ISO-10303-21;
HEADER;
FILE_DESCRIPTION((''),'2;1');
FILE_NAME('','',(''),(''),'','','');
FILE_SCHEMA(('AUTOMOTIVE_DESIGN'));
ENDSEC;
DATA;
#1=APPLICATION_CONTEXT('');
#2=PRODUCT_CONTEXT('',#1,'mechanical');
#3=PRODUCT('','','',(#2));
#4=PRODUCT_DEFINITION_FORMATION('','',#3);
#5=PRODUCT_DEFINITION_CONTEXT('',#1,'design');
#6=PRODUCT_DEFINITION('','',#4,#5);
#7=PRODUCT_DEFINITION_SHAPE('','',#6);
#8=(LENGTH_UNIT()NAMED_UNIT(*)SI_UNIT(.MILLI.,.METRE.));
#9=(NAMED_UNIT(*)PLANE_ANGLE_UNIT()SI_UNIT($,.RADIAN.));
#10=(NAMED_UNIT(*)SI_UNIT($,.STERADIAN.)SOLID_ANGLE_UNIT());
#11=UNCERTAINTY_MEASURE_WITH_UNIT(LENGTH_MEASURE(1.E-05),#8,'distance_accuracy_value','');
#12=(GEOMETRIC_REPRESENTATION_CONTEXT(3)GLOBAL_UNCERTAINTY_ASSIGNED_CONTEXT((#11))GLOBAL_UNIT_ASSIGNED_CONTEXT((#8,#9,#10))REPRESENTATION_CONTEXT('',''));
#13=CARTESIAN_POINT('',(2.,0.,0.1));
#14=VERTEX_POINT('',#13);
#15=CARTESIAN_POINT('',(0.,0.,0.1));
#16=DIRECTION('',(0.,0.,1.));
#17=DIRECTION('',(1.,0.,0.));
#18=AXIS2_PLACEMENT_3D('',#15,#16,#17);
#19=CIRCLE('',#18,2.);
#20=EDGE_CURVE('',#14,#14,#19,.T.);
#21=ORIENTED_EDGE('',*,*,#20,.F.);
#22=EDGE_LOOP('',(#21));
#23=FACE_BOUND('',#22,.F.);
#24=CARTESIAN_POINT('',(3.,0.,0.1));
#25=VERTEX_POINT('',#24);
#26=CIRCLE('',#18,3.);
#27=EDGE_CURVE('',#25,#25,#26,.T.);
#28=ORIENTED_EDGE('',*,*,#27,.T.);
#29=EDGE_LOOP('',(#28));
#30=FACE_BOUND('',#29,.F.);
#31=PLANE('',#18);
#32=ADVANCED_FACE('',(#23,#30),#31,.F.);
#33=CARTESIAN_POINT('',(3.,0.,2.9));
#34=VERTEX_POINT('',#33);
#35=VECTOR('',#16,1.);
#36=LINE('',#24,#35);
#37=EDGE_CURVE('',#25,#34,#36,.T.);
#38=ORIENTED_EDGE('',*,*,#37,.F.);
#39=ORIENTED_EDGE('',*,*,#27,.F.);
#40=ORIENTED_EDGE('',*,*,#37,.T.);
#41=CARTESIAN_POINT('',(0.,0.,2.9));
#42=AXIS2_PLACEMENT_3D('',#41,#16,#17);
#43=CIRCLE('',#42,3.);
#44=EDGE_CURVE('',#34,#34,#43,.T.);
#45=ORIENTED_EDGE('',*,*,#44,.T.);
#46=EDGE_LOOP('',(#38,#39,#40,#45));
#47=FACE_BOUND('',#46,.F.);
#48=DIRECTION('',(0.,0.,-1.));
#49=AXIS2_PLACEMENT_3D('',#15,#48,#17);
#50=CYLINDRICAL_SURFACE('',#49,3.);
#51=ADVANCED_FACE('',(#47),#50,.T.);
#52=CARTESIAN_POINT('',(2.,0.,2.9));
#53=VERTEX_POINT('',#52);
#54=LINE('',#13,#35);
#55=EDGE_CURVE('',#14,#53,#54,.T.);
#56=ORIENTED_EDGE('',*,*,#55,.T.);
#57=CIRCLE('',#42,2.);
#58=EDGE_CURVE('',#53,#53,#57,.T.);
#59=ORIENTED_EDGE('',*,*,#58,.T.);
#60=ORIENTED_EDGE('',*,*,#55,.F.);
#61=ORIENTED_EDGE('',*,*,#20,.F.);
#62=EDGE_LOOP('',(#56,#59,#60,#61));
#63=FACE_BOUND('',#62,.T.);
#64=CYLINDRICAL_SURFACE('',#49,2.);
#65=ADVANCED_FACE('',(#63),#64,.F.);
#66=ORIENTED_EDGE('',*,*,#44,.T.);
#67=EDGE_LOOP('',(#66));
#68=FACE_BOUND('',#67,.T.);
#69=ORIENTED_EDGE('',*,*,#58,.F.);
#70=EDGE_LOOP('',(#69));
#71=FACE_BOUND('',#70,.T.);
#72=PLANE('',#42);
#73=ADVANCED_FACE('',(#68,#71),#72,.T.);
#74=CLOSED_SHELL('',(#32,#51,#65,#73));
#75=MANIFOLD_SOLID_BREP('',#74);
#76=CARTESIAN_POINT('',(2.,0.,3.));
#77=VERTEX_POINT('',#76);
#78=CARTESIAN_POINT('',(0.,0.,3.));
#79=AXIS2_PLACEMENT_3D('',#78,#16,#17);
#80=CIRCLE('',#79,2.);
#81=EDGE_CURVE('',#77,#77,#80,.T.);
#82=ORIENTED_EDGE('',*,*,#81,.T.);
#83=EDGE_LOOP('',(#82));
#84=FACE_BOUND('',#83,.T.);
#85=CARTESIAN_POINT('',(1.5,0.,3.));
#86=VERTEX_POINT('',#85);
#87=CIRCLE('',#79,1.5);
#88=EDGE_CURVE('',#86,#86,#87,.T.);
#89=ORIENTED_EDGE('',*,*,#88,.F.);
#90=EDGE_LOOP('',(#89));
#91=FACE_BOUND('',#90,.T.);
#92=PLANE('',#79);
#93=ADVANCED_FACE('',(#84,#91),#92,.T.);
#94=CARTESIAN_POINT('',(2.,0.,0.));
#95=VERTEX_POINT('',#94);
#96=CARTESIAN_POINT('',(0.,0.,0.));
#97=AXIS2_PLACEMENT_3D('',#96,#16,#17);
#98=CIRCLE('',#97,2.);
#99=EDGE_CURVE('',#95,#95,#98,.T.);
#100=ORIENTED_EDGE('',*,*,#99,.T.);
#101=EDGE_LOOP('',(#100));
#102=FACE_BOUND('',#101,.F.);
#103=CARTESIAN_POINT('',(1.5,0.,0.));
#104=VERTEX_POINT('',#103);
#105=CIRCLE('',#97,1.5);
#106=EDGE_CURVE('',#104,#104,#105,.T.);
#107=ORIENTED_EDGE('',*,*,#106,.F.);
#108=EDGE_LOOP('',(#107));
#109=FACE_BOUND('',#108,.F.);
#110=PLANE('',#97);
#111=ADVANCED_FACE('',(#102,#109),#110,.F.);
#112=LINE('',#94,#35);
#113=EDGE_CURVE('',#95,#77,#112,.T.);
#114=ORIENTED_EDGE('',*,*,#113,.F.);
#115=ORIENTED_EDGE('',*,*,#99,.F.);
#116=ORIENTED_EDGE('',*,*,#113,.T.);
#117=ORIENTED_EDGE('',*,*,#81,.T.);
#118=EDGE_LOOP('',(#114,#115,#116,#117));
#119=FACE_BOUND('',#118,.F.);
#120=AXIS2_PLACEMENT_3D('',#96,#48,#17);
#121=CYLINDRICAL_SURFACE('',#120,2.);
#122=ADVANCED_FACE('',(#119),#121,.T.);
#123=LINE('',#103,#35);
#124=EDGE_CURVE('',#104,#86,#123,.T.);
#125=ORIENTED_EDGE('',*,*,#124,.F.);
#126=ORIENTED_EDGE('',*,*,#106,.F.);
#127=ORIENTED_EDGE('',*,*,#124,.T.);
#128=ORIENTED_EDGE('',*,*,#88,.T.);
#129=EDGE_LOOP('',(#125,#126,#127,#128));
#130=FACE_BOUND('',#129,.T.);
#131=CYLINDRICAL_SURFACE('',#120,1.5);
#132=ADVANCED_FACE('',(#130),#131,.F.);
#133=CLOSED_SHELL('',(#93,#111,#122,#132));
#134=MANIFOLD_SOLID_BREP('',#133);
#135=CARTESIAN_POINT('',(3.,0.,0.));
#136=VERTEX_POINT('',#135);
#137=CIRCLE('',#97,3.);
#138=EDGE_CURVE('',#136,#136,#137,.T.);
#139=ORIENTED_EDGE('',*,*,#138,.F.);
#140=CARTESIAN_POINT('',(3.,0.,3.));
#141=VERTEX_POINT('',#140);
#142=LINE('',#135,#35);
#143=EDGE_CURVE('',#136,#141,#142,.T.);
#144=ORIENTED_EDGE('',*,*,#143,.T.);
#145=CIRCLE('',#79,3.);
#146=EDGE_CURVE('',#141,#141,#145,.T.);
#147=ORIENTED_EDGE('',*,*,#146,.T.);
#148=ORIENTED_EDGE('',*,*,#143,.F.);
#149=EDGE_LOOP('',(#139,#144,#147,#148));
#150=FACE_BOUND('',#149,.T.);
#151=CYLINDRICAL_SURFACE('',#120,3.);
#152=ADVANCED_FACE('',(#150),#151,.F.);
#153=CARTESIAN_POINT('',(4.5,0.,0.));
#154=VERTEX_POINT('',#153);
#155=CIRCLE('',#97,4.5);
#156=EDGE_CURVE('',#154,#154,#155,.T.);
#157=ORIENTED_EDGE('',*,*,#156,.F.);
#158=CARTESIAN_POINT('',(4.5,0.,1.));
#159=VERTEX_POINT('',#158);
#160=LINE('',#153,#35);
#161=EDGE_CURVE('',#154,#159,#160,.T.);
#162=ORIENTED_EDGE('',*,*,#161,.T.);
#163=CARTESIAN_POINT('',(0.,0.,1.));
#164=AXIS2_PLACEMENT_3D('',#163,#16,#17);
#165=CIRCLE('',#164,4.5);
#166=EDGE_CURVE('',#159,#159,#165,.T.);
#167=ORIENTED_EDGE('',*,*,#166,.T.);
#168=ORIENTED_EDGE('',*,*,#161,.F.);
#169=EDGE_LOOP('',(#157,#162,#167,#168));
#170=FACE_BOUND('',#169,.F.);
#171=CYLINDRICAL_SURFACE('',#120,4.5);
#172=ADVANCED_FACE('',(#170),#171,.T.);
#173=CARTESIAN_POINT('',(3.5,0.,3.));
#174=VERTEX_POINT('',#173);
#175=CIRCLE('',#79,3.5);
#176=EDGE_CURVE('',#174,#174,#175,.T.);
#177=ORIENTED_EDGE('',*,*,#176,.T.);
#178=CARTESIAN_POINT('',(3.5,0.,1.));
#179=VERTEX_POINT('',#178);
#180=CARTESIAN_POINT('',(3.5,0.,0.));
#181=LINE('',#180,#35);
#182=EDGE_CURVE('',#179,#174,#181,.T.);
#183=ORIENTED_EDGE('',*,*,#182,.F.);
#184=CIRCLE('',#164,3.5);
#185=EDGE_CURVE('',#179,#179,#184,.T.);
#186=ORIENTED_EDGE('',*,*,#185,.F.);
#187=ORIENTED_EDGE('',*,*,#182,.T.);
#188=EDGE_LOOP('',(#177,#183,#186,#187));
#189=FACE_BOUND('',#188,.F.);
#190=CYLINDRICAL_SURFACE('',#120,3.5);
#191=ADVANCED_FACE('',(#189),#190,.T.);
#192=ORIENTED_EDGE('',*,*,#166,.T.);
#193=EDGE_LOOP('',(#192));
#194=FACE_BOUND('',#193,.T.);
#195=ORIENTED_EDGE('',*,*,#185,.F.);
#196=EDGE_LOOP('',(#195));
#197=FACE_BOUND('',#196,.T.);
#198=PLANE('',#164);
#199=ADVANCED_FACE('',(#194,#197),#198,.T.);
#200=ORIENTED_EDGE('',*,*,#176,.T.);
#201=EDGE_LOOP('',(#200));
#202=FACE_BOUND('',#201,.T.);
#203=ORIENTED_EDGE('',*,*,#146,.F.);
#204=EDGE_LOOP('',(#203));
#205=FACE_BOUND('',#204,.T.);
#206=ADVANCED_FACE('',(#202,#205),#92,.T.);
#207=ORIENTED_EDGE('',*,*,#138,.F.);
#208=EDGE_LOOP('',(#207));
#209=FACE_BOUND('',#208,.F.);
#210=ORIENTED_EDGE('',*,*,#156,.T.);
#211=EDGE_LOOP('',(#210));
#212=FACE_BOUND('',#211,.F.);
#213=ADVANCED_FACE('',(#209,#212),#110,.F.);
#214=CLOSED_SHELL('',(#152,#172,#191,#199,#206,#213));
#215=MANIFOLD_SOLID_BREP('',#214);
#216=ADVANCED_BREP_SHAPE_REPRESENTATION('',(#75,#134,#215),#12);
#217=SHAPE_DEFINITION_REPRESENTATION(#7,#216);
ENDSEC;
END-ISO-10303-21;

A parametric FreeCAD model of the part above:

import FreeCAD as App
import Part
import Sketcher
from FreeCAD import Vector
Q = App.Units.Quantity

doc = App.newDocument("Part")
body = doc.addObject("PartDesign::Body", "Body")

sketch1 = body.newObject("Sketcher::SketchObject", "Sketch")
sketch1.AttachmentSupport = (doc.getObject("XY_Plane"), [""])
sketch1.MapMode = "FlatFace"
sketch1.addGeometry([
    Part.Circle(Vector(0, 0, 0), Vector(0, 0, 1), 4.5),
    Part.Circle(Vector(0, 0, 0), Vector(0, 0, 1), 3.5),
], False)
sketch1.addConstraint([
    Sketcher.Constraint("Coincident", 0, 3, -1, 1),
    Sketcher.Constraint("Coincident", 1, 3, -1, 1),
    Sketcher.Constraint("Diameter", 0, Q("9 mm")),
    Sketcher.Constraint("Diameter", 1, Q("7 mm")),
])
pad1 = body.newObject("PartDesign::Pad", "Pad")
pad1.Profile = sketch1
pad1.Length = 1

sketch2 = body.newObject("Sketcher::SketchObject", "Sketch001")
sketch2.AttachmentSupport = (doc.getObject("XY_Plane"), [""])
sketch2.MapMode = "FlatFace"
sketch2.addGeometry([
    Part.Circle(Vector(0, 0, 0), Vector(0, 0, 1), 3.5),
    Part.Circle(Vector(0, 0, 0), Vector(0, 0, 1), 3),
], False)
sketch2.addConstraint([
    Sketcher.Constraint("Coincident", 0, 3, -1, 1),
    Sketcher.Constraint("Coincident", 1, 3, -1, 1),
    Sketcher.Constraint("Diameter", 0, Q("7 mm")),
    Sketcher.Constraint("Diameter", 1, Q("6 mm")),
])
pad2 = body.newObject("PartDesign::Pad", "Pad001")
pad2.Profile = sketch2
pad2.Length = 3
body2 = doc.addObject("PartDesign::Body", "Body001")

sketch3 = body2.newObject("Sketcher::SketchObject", "Sketch002")
sketch3.AttachmentSupport = (doc.getObject("XY_Plane001"), [""])
sketch3.MapMode = "FlatFace"
sketch3.addGeometry([
    Part.Circle(Vector(0, 0, 0), Vector(0, 0, 1), 2),
    Part.Circle(Vector(0, 0, 0), Vector(0, 0, 1), 1.5),
], False)
sketch3.addConstraint([
    Sketcher.Constraint("Coincident", 0, 3, -1, 1),
    Sketcher.Constraint("Coincident", 1, 3, -1, 1),
    Sketcher.Constraint("Diameter", 0, Q("4 mm")),
    Sketcher.Constraint("Diameter", 1, Q("3 mm")),
])
pad3 = body2.newObject("PartDesign::Pad", "Pad002")
pad3.Profile = sketch3
pad3.Length = 3
body3 = doc.addObject("PartDesign::Body", "Body002")

sketch4 = body3.newObject("Sketcher::SketchObject", "Sketch003")
sketch4.AttachmentSupport = (doc.getObject("XY_Plane002"), [""])
sketch4.MapMode = "FlatFace"
sketch4.AttachmentOffset = App.Placement(Vector(0, 0, 0.1), App.Rotation())
sketch4.addGeometry([
    Part.Circle(Vector(0, 0, 0), Vector(0, 0, 1), 3),
    Part.Circle(Vector(0, 0, 0), Vector(0, 0, 1), 2),
], False)
sketch4.addConstraint([
    Sketcher.Constraint("Coincident", 0, 3, -1, 1),
    Sketcher.Constraint("Coincident", 1, 3, -1, 1),
    Sketcher.Constraint("Diameter", 0, Q("6 mm")),
    Sketcher.Constraint("Diameter", 1, Q("4 mm")),
])
pad4 = body3.newObject("PartDesign::Pad", "Pad003")
pad4.Profile = sketch4
pad4.Length = 2.8

doc.recompute()
